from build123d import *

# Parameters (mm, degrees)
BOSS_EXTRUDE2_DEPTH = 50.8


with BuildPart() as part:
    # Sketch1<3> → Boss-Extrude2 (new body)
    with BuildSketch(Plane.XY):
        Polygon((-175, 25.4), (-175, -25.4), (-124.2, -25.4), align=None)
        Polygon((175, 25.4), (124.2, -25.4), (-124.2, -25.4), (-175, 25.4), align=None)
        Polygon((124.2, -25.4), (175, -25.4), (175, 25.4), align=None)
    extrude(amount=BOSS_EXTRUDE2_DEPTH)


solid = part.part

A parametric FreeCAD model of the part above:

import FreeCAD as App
import Part
import Sketcher
from FreeCAD import Vector

doc = App.newDocument("Part")
body = doc.addObject("PartDesign::Body", "Body")

sketch1 = body.newObject("Sketcher::SketchObject", "Sketch")
sketch1.AttachmentSupport = (doc.getObject("XY_Plane"), [""])
sketch1.MapMode = "FlatFace"
sketch1.addGeometry([
    Part.LineSegment(Vector(-175, 25.4, 0), Vector(-175, -25.4, 0)),
    Part.LineSegment(Vector(-175, -25.4, 0), Vector(175, -25.4, 0)),
    Part.LineSegment(Vector(175, -25.4, 0), Vector(175, 25.4, 0)),
    Part.LineSegment(Vector(175, 25.4, 0), Vector(-175, 25.4, 0)),
], False)
sketch1.addConstraint([
    Sketcher.Constraint("Coincident", 0, 2, 1, 1),
    Sketcher.Constraint("Coincident", 1, 2, 2, 1),
    Sketcher.Constraint("Coincident", 2, 2, 3, 1),
    Sketcher.Constraint("Coincident", 3, 2, 0, 1),
    Sketcher.Constraint("Vertical", 0),
    Sketcher.Constraint("Horizontal", 1),
    Sketcher.Constraint("Vertical", 2),
    Sketcher.Constraint("Horizontal", 3),
    Sketcher.Constraint("Symmetric", 0, 2, 2, 2, -1, 1),
    Sketcher.Constraint("DistanceX", 1, 1, 1, 2, 350.0),
    Sketcher.Constraint("DistanceY", 0, 2, 0, 1, 50.8),
])
pad1 = body.newObject("PartDesign::Pad", "Pad")
pad1.Profile = sketch1
pad1.Length = 50.8

doc.recompute()
